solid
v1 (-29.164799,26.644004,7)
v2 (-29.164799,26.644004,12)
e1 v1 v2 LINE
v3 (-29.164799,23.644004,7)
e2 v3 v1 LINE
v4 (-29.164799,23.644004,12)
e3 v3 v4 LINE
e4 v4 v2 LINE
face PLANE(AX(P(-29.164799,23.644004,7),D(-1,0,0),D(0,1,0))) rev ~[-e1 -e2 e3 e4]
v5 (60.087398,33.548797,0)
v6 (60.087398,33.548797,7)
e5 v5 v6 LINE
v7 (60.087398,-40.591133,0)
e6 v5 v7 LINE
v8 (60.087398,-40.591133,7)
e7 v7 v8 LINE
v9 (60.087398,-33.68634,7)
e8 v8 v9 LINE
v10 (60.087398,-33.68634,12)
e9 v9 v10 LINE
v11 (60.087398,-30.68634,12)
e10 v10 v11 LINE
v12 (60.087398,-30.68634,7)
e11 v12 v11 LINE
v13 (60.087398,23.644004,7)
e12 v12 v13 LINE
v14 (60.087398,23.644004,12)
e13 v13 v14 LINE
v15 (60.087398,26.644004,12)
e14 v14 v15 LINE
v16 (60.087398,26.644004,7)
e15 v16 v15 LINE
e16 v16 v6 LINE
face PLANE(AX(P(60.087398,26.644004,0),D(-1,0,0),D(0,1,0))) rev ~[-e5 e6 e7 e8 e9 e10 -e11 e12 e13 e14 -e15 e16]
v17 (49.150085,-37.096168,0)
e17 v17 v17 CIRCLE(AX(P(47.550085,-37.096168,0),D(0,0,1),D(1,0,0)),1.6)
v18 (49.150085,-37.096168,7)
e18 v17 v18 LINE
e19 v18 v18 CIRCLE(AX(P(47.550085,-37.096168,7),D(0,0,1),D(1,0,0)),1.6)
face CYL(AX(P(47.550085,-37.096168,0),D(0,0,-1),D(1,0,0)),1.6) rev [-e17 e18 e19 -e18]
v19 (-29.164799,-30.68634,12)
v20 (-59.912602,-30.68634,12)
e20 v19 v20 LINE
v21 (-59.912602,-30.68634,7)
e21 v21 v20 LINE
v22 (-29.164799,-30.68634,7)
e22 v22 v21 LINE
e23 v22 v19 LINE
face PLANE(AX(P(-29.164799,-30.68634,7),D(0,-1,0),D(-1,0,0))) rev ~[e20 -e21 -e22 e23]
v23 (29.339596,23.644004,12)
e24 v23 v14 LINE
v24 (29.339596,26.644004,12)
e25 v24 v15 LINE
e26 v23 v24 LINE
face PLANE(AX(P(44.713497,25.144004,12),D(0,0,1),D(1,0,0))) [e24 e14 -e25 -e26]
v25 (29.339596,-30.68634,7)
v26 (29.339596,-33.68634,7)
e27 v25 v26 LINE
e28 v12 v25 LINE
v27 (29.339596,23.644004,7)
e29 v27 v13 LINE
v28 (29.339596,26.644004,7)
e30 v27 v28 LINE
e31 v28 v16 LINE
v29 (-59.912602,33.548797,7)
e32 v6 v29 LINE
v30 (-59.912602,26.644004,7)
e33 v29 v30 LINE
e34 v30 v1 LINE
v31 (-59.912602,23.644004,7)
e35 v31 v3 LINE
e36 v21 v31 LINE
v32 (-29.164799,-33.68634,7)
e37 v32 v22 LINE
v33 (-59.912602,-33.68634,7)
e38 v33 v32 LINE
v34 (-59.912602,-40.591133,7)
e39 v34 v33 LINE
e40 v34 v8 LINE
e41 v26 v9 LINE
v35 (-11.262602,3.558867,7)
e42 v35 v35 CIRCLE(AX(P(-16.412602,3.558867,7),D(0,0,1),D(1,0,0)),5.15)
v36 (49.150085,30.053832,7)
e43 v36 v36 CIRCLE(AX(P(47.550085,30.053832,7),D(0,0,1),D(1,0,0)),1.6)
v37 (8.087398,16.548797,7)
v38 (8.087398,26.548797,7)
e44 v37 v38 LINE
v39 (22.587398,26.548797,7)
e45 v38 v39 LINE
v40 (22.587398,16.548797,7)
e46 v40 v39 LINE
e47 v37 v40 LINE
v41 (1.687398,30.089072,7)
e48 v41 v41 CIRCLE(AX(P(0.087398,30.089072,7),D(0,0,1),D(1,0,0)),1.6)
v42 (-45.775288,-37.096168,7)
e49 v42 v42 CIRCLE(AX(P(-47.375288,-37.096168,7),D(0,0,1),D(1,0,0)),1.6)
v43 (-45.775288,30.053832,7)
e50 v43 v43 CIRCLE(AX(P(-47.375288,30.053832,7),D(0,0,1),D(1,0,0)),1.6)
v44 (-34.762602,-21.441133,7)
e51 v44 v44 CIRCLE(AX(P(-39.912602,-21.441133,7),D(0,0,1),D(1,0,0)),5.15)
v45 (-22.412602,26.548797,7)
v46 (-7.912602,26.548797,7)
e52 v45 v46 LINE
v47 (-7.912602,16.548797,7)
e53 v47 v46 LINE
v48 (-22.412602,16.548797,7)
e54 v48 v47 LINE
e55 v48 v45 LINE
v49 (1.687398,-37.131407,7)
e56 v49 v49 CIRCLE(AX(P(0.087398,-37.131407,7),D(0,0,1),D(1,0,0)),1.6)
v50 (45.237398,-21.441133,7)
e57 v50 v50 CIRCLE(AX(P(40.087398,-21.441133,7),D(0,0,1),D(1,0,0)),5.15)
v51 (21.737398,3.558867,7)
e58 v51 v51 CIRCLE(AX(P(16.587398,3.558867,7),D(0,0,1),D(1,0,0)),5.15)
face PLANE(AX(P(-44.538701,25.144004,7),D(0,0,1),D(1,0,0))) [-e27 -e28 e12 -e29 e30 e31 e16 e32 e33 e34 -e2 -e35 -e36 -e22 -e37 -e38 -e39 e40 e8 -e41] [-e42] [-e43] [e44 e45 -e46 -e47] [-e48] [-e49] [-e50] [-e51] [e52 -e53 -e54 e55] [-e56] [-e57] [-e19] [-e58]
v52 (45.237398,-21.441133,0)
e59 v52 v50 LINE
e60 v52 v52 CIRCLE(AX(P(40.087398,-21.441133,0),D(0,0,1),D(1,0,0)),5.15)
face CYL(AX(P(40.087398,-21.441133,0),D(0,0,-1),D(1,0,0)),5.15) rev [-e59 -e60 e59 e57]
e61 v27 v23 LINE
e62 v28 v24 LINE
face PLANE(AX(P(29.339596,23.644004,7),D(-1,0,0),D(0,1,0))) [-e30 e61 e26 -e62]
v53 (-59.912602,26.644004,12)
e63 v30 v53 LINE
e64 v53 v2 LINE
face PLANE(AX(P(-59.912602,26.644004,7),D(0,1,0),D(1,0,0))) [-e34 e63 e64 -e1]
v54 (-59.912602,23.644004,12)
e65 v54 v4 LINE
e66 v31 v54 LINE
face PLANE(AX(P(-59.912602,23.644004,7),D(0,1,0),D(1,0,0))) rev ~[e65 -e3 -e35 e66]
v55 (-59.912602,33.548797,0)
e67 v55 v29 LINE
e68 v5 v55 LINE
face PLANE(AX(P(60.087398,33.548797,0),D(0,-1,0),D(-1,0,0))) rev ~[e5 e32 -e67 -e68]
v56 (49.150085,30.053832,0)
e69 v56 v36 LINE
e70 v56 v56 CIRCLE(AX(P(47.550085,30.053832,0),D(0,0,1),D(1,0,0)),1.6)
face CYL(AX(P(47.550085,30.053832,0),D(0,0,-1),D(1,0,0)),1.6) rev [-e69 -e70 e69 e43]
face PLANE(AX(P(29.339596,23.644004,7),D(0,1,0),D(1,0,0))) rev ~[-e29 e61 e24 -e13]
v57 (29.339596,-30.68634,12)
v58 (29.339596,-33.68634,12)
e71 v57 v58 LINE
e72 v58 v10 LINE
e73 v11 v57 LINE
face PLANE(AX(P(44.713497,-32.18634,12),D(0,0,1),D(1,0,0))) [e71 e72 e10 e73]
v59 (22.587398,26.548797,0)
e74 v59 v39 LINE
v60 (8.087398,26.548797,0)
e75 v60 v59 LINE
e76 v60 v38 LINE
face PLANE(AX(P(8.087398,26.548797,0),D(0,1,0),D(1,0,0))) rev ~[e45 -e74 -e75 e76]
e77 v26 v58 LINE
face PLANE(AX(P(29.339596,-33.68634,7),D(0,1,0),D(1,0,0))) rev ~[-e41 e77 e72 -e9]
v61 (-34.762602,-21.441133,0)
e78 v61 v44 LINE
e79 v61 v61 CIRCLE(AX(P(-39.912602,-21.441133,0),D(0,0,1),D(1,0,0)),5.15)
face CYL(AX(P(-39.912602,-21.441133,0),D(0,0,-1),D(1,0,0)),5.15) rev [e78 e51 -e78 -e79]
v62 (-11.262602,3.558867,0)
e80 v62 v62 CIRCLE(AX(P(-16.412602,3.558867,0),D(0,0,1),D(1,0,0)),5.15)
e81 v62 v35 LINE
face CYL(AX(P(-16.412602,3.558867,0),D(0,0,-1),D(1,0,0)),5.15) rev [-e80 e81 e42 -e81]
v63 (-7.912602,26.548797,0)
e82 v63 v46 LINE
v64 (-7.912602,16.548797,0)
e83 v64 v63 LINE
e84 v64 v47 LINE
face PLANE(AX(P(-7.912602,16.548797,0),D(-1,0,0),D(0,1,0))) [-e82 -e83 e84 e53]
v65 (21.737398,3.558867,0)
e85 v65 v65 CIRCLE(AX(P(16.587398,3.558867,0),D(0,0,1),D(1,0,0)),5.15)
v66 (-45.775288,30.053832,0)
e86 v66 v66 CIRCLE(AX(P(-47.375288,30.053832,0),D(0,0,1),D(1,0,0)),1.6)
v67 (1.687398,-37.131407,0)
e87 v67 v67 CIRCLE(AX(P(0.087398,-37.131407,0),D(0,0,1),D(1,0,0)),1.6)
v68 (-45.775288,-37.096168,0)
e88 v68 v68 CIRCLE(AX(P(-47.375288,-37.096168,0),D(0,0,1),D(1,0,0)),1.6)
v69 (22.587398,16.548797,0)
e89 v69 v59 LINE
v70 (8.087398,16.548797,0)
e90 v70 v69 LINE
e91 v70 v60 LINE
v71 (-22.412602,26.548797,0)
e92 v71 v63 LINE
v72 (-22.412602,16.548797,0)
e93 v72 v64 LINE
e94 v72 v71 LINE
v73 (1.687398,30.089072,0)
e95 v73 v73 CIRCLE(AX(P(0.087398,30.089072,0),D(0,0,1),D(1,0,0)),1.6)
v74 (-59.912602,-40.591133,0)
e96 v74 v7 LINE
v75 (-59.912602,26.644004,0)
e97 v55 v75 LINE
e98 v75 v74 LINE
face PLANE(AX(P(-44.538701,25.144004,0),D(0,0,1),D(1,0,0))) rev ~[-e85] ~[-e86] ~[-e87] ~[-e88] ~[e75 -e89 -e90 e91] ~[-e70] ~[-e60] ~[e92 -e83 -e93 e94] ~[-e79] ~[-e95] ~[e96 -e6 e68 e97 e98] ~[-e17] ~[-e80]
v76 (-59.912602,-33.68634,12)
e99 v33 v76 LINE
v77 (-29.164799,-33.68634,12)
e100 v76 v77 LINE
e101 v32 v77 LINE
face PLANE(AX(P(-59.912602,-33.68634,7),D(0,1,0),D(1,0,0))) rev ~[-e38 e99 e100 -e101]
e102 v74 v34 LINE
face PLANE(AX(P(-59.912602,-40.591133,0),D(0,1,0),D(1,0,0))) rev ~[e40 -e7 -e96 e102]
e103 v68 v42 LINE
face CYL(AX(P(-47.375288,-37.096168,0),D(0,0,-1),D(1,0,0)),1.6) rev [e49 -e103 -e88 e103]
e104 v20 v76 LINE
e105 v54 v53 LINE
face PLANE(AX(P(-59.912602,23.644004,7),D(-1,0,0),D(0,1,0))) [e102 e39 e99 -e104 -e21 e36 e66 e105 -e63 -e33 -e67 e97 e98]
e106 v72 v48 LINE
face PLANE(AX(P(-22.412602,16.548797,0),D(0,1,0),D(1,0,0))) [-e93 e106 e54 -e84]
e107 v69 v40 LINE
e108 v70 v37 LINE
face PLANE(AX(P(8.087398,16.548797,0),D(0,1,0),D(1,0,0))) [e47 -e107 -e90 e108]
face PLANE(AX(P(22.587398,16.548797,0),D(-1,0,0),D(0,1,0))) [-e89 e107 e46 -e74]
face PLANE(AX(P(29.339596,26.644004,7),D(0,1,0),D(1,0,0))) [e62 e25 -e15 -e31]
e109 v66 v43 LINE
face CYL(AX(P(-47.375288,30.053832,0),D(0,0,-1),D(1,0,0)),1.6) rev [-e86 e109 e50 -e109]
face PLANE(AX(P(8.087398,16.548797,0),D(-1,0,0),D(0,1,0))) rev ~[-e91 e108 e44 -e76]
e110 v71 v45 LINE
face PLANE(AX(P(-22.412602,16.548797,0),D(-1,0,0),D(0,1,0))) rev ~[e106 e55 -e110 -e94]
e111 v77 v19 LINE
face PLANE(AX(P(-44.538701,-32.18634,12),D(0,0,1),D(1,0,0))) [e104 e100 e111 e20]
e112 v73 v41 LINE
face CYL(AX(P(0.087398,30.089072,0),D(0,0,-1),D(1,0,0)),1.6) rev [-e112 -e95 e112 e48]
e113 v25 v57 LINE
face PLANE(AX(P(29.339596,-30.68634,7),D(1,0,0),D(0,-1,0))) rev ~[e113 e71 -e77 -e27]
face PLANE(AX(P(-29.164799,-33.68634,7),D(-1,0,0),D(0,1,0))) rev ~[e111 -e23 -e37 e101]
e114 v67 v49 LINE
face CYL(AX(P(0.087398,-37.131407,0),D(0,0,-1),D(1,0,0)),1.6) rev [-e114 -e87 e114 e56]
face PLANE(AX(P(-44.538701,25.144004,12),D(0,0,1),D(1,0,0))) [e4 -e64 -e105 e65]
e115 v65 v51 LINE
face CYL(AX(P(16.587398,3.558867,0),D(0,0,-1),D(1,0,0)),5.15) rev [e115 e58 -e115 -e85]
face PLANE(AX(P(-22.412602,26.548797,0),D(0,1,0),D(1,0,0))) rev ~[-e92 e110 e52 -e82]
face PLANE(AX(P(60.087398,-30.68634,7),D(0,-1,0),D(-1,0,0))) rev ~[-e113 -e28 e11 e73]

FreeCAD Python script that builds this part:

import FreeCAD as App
import Part
import Sketcher

V = App.Vector
Q = App.Units.Quantity


def add_polygon(sketch, points):
    """Adds a closed chain of lines whose ends are joined by coincident constraints."""
    first, n = sketch.GeometryCount, len(points)
    for a, b in zip(points, points[1:] + points[:1]):
        sketch.addGeometry(Part.LineSegment(App.Vector(*a, 0), App.Vector(*b, 0)), False)
    for i in range(n):
        sketch.addConstraint(Sketcher.Constraint("Coincident", first + i, 2, first + (i + 1) % n, 1))

doc = App.newDocument("Part")
params = doc.addObject("Spreadsheet::Sheet", "Params")
for row, (alias, value) in enumerate([
    ("sketch1_diameter", "3.2 mm"),
    ("sketch1_diameter2", "10.3 mm"),
    ("sketch1_width", "120 mm"),
    ("sketch1_height", "3 mm"),
    ("sketch1_height2", "10 mm"),
    ("pad1_length", "7 mm"),
    ("sketch2_height", "3 mm"),
    ("pad2_length", "5 mm"),
], start=1):
    params.set(f"A{row}", alias)
    params.set(f"B{row}", "=" + value)
    params.setAlias(f"B{row}", alias)

body = doc.addObject("PartDesign::Body", "Body")

sketch1 = body.newObject("Sketcher::SketchObject", "Sketch")
sketch1.AttachmentSupport = (doc.getObject("XY_Plane"), [""])
sketch1.MapMode = "FlatFace"
add_polygon(sketch1, [(60.087398, 33.548797), (-59.912602, 33.548797), (-59.912602, 26.644004), (-59.912602, 23.644004), (-59.912602, -40.591133), (60.087398, -40.591133)])
sketch1.addGeometry(Part.Circle(V(-47.375288, -37.096168, 0), V(0, 0, 1), 1.6), False)
sketch1.addGeometry(Part.Circle(V(-39.912602, -21.441133, 0), V(0, 0, 1), 5.15), False)
sketch1.addGeometry(Part.Circle(V(0.087398, -37.131407, 0), V(0, 0, 1), 1.6), False)
sketch1.addGeometry(Part.Circle(V(47.550085, -37.096168, 0), V(0, 0, 1), 1.6), False)
sketch1.addGeometry(Part.Circle(V(40.087398, -21.441133, 0), V(0, 0, 1), 5.15), False)
sketch1.addGeometry(Part.Circle(V(-16.412602, 3.558867, 0), V(0, 0, 1), 5.15), False)
sketch1.addGeometry(Part.Circle(V(-47.375288, 30.053832, 0), V(0, 0, 1), 1.6), False)
add_polygon(sketch1, [(-7.912602, 16.548797), (-22.412602, 16.548797), (-22.412602, 26.548797), (-7.912602, 26.548797)])
sketch1.addGeometry(Part.Circle(V(16.587398, 3.558867, 0), V(0, 0, 1), 5.15), False)
add_polygon(sketch1, [(22.587398, 16.548797), (8.087398, 16.548797), (8.087398, 26.548797), (22.587398, 26.548797)])
sketch1.addGeometry(Part.Circle(V(0.087398, 30.089072, 0), V(0, 0, 1), 1.6), False)
sketch1.addGeometry(Part.Circle(V(47.550085, 30.053832, 0), V(0, 0, 1), 1.6), False)
sketch1.addConstraint([
    Sketcher.Constraint("Horizontal", 0),
    Sketcher.Constraint("Vertical", 1),
    Sketcher.Constraint("Vertical", 2),
    Sketcher.Constraint("Vertical", 3),
    Sketcher.Constraint("Horizontal", 4),
    Sketcher.Constraint("Vertical", 5),
    Sketcher.Constraint("Horizontal", 13),
    Sketcher.Constraint("Vertical", 14),
    Sketcher.Constraint("Horizontal", 15),
    Sketcher.Constraint("Vertical", 16),
    Sketcher.Constraint("Horizontal", 18),
    Sketcher.Constraint("Vertical", 19),
    Sketcher.Constraint("Horizontal", 20),
    Sketcher.Constraint("Vertical", 21),
    Sketcher.Constraint("Equal", 6, 8),
    Sketcher.Constraint("Equal", 8, 9),
    Sketcher.Constraint("Equal", 7, 10),
    Sketcher.Constraint("Equal", 10, 11),
    Sketcher.Constraint("Equal", 9, 12),
    Sketcher.Constraint("Equal", 11, 17),
    Sketcher.Constraint("Equal", 12, 22),
    Sketcher.Constraint("Equal", 22, 23),
    Sketcher.Constraint("Horizontal", 6, 3, 9, 3),
    Sketcher.Constraint("Horizontal", 7, 3, 10, 3),
    Sketcher.Constraint("Horizontal", 11, 3, 17, 3),
    Sketcher.Constraint("Horizontal", 12, 3, 23, 3),
    Sketcher.Constraint("Horizontal", 16, 2, 18, 2),
    Sketcher.Constraint("Horizontal", 15, 2, 19, 2),
    Sketcher.Constraint("Vertical", 6, 3, 12, 3),
    Sketcher.Constraint("Vertical", 8, 3, 22, 3),
    Sketcher.Constraint("Vertical", 9, 3, 23, 3),
    Sketcher.Constraint("Equal", 15, 18),
    Sketcher.Constraint("Diameter", 6, Q("3.2 mm")),
    Sketcher.Constraint("Diameter", 7, Q("10.3 mm")),
    Sketcher.Constraint("DistanceX", 0, 2, 0, 1, Q("120 mm")),
    Sketcher.Constraint("DistanceY", 2, 2, 2, 1, Q("3 mm")),
    Sketcher.Constraint("DistanceY", 14, 1, 14, 2, Q("10 mm")),
    Sketcher.Constraint("DistanceX", 13, 2, 13, 1, Q("14.5 mm")),
    Sketcher.Constraint("DistanceX", 7, 3, 8, 3, Q("40 mm")),
    Sketcher.Constraint("DistanceX", 8, 3, 10, 3, Q("40 mm")),
    Sketcher.Constraint("DistanceY", 7, 3, 11, 3, Q("25 mm")),
    Sketcher.Constraint("DistanceX", 11, 3, 17, 3, Q("33 mm")),
    Sketcher.Constraint("DistanceX", 0, 2, 7, 3, Q("20 mm")),
    Sketcher.Constraint("DistanceX", 13, 2, 11, 3, Q("6 mm")),
    Sketcher.Constraint("DistanceX", 15, 2, 22, 3, Q("8 mm")),
    Sketcher.Constraint("DistanceX", 22, 3, 18, 2, Q("8 mm")),
    Sketcher.Constraint("DistanceY", 6, 3, 12, 3, Q("67.15 mm")),
    Sketcher.Constraint("DistanceY", 3, 2, 7, 3, Q("19.15 mm")),
    Sketcher.Constraint("DistanceY", 5, 1, 5, 2, Q("74.13993 mm")),
    Sketcher.Constraint("DistanceX", 7, 3, -1, 1, Q("39.912602 mm")),
    Sketcher.Constraint("DistanceY", 1, 2, 1, 1, Q("6.904793 mm")),
    Sketcher.Constraint("DistanceX", 6, 3, -1, 1, Q("47.375288 mm")),
    Sketcher.Constraint("DistanceY", 8, 3, 6, 3, Q("0.03524 mm")),
    Sketcher.Constraint("DistanceY", 12, 3, 22, 3, Q("0.03524 mm")),
    Sketcher.Constraint("DistanceY", 11, 3, 13, 2, Q("12.98993 mm")),
    Sketcher.Constraint("DistanceY", 6, 3, -1, 1, Q("37.096168 mm")),
    Sketcher.Constraint("DistanceY", 7, 3, -1, 1, Q("21.441133 mm")),
    Sketcher.Constraint("DistanceX", -1, 1, 9, 3, Q("47.550085 mm")),
])
sketch1.setExpression("Constraints[46]", "Params.sketch1_diameter")
sketch1.setExpression("Constraints[47]", "Params.sketch1_diameter2")
sketch1.setExpression("Constraints[48]", "Params.sketch1_width")
sketch1.setExpression("Constraints[49]", "Params.sketch1_height")
sketch1.setExpression("Constraints[50]", "Params.sketch1_height2")
pad1 = body.newObject("PartDesign::Pad", "Pad")
pad1.Profile = sketch1
pad1.setExpression("Length", "Params.pad1_length")

sketch2 = body.newObject("Sketcher::SketchObject", "Sketch001")
sketch2.AttachmentSupport = (doc.getObject("XY_Plane"), [""])
sketch2.MapMode = "FlatFace"
sketch2.AttachmentOffset = App.Placement(V(0, 0, 7), App.Rotation())
add_polygon(sketch2, [(-59.912602, 26.644004), (-59.912602, 23.644004), (-29.164799, 23.644004), (-29.164799, 26.644004)])
add_polygon(sketch2, [(29.339596, 26.644004), (29.339596, 23.644004), (60.087398, 23.644004), (60.087398, 26.644004)])
add_polygon(sketch2, [(-29.164799, -30.68634), (-59.912602, -30.68634), (-59.912602, -33.68634), (-29.164799, -33.68634)])
add_polygon(sketch2, [(60.087398, -30.68634), (29.339596, -30.68634), (29.339596, -33.68634), (60.087398, -33.68634)])
sketch2.addConstraint([
    Sketcher.Constraint("Vertical", 0),
    Sketcher.Constraint("Horizontal", 1),
    Sketcher.Constraint("Vertical", 2),
    Sketcher.Constraint("Horizontal", 3),
    Sketcher.Constraint("Vertical", 4),
    Sketcher.Constraint("Horizontal", 5),
    Sketcher.Constraint("Vertical", 6),
    Sketcher.Constraint("Horizontal", 7),
    Sketcher.Constraint("Horizontal", 8),
    Sketcher.Constraint("Vertical", 9),
    Sketcher.Constraint("Horizontal", 10),
    Sketcher.Constraint("Vertical", 11),
    Sketcher.Constraint("Horizontal", 12),
    Sketcher.Constraint("Vertical", 13),
    Sketcher.Constraint("Horizontal", 14),
    Sketcher.Constraint("Vertical", 15),
    Sketcher.Constraint("Horizontal", 1, 2, 4, 2),
    Sketcher.Constraint("Horizontal", 3, 2, 6, 2),
    Sketcher.Constraint("Horizontal", 11, 2, 12, 2),
    Sketcher.Constraint("Horizontal", 10, 2, 13, 2),
    Sketcher.Constraint("Vertical", 3, 2, 8, 2),
    Sketcher.Constraint("Vertical", 2, 2, 10, 2),
    Sketcher.Constraint("Vertical", 7, 2, 12, 2),
    Sketcher.Constraint("Vertical", 6, 2, 14, 2),
    Sketcher.Constraint("Equal", 3, 5),
    Sketcher.Constraint("Equal", 6, 9),
    Sketcher.Constraint("DistanceY", 0, 2, 0, 1, Q("3 mm")),
    Sketcher.Constraint("DistanceX", 0, 2, 5, 2, Q("120 mm")),
    Sketcher.Constraint("DistanceX", 0, 2, -1, 1, Q("59.912602 mm")),
    Sketcher.Constraint("DistanceX", 1, 2, -1, 1, Q("29.164799 mm")),
    Sketcher.Constraint("DistanceY", 8, 2, -1, 1, Q("30.68634 mm")),
    Sketcher.Constraint("DistanceY", -1, 1, 0, 2, Q("23.644004 mm")),
])
sketch2.setExpression("Constraints[42]", "Params.sketch2_height")
pad2 = body.newObject("PartDesign::Pad", "Pad001")
pad2.Profile = sketch2
pad2.setExpression("Length", "Params.pad2_length")

doc.recompute()
